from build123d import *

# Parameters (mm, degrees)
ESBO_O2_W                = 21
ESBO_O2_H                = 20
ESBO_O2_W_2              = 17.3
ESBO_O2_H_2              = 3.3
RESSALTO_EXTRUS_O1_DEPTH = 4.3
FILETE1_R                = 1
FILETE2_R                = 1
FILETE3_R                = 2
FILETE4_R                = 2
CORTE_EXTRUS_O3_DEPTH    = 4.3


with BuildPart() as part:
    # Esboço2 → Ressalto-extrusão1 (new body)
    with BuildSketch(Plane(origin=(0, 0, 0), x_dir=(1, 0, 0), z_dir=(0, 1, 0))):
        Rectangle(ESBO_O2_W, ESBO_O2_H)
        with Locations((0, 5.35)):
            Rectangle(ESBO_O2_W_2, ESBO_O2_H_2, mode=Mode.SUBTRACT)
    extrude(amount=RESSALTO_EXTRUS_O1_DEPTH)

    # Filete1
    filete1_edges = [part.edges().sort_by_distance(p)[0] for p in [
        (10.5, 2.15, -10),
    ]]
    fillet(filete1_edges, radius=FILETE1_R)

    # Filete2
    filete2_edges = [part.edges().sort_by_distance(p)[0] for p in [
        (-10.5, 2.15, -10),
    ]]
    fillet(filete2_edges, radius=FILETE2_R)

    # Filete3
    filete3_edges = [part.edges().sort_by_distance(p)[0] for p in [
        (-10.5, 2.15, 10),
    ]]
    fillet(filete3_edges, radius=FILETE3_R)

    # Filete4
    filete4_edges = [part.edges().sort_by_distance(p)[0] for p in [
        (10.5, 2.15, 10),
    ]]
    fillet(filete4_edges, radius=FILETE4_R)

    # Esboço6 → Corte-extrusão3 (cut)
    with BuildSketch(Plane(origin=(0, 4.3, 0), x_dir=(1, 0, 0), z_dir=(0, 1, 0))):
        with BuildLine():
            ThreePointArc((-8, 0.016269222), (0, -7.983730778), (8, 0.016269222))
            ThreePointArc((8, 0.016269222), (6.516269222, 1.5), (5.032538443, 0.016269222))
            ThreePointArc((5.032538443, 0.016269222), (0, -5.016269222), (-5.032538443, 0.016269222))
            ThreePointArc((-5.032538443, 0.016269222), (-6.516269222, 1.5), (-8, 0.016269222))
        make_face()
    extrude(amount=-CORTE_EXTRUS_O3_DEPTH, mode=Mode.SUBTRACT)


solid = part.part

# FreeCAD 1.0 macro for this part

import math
import FreeCAD as App
import Part
import Sketcher

V = App.Vector
Q = App.Units.Quantity


def edges_at(feature, points):
    """Names of the edges that pass closest to the given points."""
    edges = feature.Shape.Edges
    near = lambda p: min(range(len(edges)), key=lambda i: edges[i].distToShape(Part.Vertex(*p))[0])
    return sorted({f"Edge{near(p) + 1}" for p in points})

doc = App.newDocument("Part")
body = doc.addObject("PartDesign::Body", "Body")

# Sketch on XZ plane
sketch1 = body.newObject("Sketcher::SketchObject", "Sketch")
sketch1.AttachmentSupport = (doc.getObject("XZ_Plane"), [""])
sketch1.MapMode = "FlatFace"
sketch1.addGeometry([
    Part.LineSegment(V(-10.5, -10, 0), V(-10.5, 10, 0)),  # 0
    Part.LineSegment(V(-10.5, 10, 0), V(10.5, 10, 0)),  # 1
    Part.LineSegment(V(10.5, 10, 0), V(10.5, -10, 0)),  # 2
    Part.LineSegment(V(10.5, -10, 0), V(-10.5, -10, 0)),  # 3
    Part.LineSegment(V(8.7, -3.7, 0), V(-8.7, -3.7, 0)),  # 4
    Part.LineSegment(V(-8.7, -3.7, 0), V(-8.7, -7, 0)),  # 5
    Part.LineSegment(V(-8.7, -7, 0), V(8.7, -7, 0)),  # 6
    Part.LineSegment(V(8.7, -7, 0), V(8.7, -3.7, 0)),  # 7
], False)
sketch1.addConstraint([
    Sketcher.Constraint("Coincident", 0, 2, 1, 1),
    Sketcher.Constraint("Coincident", 1, 2, 2, 1),
    Sketcher.Constraint("Coincident", 2, 2, 3, 1),
    Sketcher.Constraint("Coincident", 3, 2, 0, 1),
    Sketcher.Constraint("Coincident", 4, 2, 5, 1),
    Sketcher.Constraint("Coincident", 5, 2, 6, 1),
    Sketcher.Constraint("Coincident", 6, 2, 7, 1),
    Sketcher.Constraint("Coincident", 7, 2, 4, 1),
    Sketcher.Constraint("Vertical", 0),
    Sketcher.Constraint("Horizontal", 1),
    Sketcher.Constraint("Vertical", 2),
    Sketcher.Constraint("Horizontal", 3),
    Sketcher.Constraint("Horizontal", 4),
    Sketcher.Constraint("Vertical", 5),
    Sketcher.Constraint("Horizontal", 6),
    Sketcher.Constraint("Vertical", 7),
    Sketcher.Constraint("Symmetric", 0, 2, 2, 2, -1, 1),
    Sketcher.Constraint("DistanceX", 1, 1, 1, 2, Q("21 mm")),
    Sketcher.Constraint("DistanceY", 0, 1, 0, 2, Q("20 mm")),
    Sketcher.Constraint("DistanceX", 4, 2, 4, 1, Q("17.3 mm")),
    Sketcher.Constraint("DistanceY", 5, 2, 5, 1, Q("3.3 mm")),
    Sketcher.Constraint("DistanceY", 5, 2, -1, 1, Q("7 mm")),
    Sketcher.Constraint("DistanceX", 4, 2, -1, 1, Q("8.65 mm")),
])
pad1 = body.newObject("PartDesign::Pad", "Pad")
pad1.Profile = sketch1
pad1.Length = 4.3
pad1.Reversed = True
doc.recompute()

fillet = body.newObject("PartDesign::Fillet", "Fillet")
fillet.Base = (pad1, edges_at(pad1, [(10.5, 2.15, -10)]))
fillet.Radius = 1
doc.recompute()

fillet2 = body.newObject("PartDesign::Fillet", "Fillet001")
fillet2.Base = (fillet, edges_at(fillet, [(-10.5, 2.15, -10)]))
fillet2.Radius = 1
doc.recompute()

fillet3 = body.newObject("PartDesign::Fillet", "Fillet002")
fillet3.Base = (fillet2, edges_at(fillet2, [(-10.5, 2.15, 10)]))
fillet3.Radius = 2
doc.recompute()

fillet4 = body.newObject("PartDesign::Fillet", "Fillet003")
fillet4.Base = (fillet3, edges_at(fillet3, [(10.5, 2.15, 10)]))
fillet4.Radius = 2

# Sketch on XZ plane
sketch2 = body.newObject("Sketcher::SketchObject", "Sketch001")
sketch2.AttachmentSupport = (doc.getObject("XZ_Plane"), [""])
sketch2.MapMode = "FlatFace"
sketch2.AttachmentOffset = App.Placement(V(0, 0, -4.3), App.Rotation())
sketch2.addGeometry([
    Part.ArcOfCircle(Part.Circle(V(0, 0, 0), V(0, 0, 1), 8), math.radians(0), math.radians(180)),
    Part.ArcOfCircle(Part.Circle(V(6.5, 0, 0), V(0, 0, 1), 1.5), math.radians(-180), math.radians(0)),
    Part.ArcOfCircle(Part.Circle(V(0, 0, 0), V(0, 0, 1), 5), math.radians(0), math.radians(180)),
    Part.ArcOfCircle(Part.Circle(V(-6.5, 0, 0), V(0, 0, 1), 1.5), math.radians(180), math.radians(360)),
], False)
sketch2.addConstraint([
    Sketcher.Constraint("Tangent", 0, 1, 1, 2),
    Sketcher.Constraint("Tangent", 1, 1, 2, 1),
    Sketcher.Constraint("Tangent", 2, 2, 3, 2),
    Sketcher.Constraint("Tangent", 3, 1, 0, 2),
    Sketcher.Constraint("Coincident", 2, 3, 0, 3),
    Sketcher.Constraint("Symmetric", 1, 3, 3, 3, -2),
    Sketcher.Constraint("Horizontal", 0, 3, 1, 3),
    Sketcher.Constraint("Radius", 0, Q("8 mm")),
    Sketcher.Constraint("Radius", 1, Q("1.483731 mm")),
    Sketcher.Constraint("DistanceY", 0, 3, -1, 1, Q("0.016269 mm")),
])
pocket1 = body.newObject("PartDesign::Pocket", "Pocket")
pocket1.Profile = sketch2
pocket1.Length = 4.3
pocket1.Reversed = True

doc.recompute()
